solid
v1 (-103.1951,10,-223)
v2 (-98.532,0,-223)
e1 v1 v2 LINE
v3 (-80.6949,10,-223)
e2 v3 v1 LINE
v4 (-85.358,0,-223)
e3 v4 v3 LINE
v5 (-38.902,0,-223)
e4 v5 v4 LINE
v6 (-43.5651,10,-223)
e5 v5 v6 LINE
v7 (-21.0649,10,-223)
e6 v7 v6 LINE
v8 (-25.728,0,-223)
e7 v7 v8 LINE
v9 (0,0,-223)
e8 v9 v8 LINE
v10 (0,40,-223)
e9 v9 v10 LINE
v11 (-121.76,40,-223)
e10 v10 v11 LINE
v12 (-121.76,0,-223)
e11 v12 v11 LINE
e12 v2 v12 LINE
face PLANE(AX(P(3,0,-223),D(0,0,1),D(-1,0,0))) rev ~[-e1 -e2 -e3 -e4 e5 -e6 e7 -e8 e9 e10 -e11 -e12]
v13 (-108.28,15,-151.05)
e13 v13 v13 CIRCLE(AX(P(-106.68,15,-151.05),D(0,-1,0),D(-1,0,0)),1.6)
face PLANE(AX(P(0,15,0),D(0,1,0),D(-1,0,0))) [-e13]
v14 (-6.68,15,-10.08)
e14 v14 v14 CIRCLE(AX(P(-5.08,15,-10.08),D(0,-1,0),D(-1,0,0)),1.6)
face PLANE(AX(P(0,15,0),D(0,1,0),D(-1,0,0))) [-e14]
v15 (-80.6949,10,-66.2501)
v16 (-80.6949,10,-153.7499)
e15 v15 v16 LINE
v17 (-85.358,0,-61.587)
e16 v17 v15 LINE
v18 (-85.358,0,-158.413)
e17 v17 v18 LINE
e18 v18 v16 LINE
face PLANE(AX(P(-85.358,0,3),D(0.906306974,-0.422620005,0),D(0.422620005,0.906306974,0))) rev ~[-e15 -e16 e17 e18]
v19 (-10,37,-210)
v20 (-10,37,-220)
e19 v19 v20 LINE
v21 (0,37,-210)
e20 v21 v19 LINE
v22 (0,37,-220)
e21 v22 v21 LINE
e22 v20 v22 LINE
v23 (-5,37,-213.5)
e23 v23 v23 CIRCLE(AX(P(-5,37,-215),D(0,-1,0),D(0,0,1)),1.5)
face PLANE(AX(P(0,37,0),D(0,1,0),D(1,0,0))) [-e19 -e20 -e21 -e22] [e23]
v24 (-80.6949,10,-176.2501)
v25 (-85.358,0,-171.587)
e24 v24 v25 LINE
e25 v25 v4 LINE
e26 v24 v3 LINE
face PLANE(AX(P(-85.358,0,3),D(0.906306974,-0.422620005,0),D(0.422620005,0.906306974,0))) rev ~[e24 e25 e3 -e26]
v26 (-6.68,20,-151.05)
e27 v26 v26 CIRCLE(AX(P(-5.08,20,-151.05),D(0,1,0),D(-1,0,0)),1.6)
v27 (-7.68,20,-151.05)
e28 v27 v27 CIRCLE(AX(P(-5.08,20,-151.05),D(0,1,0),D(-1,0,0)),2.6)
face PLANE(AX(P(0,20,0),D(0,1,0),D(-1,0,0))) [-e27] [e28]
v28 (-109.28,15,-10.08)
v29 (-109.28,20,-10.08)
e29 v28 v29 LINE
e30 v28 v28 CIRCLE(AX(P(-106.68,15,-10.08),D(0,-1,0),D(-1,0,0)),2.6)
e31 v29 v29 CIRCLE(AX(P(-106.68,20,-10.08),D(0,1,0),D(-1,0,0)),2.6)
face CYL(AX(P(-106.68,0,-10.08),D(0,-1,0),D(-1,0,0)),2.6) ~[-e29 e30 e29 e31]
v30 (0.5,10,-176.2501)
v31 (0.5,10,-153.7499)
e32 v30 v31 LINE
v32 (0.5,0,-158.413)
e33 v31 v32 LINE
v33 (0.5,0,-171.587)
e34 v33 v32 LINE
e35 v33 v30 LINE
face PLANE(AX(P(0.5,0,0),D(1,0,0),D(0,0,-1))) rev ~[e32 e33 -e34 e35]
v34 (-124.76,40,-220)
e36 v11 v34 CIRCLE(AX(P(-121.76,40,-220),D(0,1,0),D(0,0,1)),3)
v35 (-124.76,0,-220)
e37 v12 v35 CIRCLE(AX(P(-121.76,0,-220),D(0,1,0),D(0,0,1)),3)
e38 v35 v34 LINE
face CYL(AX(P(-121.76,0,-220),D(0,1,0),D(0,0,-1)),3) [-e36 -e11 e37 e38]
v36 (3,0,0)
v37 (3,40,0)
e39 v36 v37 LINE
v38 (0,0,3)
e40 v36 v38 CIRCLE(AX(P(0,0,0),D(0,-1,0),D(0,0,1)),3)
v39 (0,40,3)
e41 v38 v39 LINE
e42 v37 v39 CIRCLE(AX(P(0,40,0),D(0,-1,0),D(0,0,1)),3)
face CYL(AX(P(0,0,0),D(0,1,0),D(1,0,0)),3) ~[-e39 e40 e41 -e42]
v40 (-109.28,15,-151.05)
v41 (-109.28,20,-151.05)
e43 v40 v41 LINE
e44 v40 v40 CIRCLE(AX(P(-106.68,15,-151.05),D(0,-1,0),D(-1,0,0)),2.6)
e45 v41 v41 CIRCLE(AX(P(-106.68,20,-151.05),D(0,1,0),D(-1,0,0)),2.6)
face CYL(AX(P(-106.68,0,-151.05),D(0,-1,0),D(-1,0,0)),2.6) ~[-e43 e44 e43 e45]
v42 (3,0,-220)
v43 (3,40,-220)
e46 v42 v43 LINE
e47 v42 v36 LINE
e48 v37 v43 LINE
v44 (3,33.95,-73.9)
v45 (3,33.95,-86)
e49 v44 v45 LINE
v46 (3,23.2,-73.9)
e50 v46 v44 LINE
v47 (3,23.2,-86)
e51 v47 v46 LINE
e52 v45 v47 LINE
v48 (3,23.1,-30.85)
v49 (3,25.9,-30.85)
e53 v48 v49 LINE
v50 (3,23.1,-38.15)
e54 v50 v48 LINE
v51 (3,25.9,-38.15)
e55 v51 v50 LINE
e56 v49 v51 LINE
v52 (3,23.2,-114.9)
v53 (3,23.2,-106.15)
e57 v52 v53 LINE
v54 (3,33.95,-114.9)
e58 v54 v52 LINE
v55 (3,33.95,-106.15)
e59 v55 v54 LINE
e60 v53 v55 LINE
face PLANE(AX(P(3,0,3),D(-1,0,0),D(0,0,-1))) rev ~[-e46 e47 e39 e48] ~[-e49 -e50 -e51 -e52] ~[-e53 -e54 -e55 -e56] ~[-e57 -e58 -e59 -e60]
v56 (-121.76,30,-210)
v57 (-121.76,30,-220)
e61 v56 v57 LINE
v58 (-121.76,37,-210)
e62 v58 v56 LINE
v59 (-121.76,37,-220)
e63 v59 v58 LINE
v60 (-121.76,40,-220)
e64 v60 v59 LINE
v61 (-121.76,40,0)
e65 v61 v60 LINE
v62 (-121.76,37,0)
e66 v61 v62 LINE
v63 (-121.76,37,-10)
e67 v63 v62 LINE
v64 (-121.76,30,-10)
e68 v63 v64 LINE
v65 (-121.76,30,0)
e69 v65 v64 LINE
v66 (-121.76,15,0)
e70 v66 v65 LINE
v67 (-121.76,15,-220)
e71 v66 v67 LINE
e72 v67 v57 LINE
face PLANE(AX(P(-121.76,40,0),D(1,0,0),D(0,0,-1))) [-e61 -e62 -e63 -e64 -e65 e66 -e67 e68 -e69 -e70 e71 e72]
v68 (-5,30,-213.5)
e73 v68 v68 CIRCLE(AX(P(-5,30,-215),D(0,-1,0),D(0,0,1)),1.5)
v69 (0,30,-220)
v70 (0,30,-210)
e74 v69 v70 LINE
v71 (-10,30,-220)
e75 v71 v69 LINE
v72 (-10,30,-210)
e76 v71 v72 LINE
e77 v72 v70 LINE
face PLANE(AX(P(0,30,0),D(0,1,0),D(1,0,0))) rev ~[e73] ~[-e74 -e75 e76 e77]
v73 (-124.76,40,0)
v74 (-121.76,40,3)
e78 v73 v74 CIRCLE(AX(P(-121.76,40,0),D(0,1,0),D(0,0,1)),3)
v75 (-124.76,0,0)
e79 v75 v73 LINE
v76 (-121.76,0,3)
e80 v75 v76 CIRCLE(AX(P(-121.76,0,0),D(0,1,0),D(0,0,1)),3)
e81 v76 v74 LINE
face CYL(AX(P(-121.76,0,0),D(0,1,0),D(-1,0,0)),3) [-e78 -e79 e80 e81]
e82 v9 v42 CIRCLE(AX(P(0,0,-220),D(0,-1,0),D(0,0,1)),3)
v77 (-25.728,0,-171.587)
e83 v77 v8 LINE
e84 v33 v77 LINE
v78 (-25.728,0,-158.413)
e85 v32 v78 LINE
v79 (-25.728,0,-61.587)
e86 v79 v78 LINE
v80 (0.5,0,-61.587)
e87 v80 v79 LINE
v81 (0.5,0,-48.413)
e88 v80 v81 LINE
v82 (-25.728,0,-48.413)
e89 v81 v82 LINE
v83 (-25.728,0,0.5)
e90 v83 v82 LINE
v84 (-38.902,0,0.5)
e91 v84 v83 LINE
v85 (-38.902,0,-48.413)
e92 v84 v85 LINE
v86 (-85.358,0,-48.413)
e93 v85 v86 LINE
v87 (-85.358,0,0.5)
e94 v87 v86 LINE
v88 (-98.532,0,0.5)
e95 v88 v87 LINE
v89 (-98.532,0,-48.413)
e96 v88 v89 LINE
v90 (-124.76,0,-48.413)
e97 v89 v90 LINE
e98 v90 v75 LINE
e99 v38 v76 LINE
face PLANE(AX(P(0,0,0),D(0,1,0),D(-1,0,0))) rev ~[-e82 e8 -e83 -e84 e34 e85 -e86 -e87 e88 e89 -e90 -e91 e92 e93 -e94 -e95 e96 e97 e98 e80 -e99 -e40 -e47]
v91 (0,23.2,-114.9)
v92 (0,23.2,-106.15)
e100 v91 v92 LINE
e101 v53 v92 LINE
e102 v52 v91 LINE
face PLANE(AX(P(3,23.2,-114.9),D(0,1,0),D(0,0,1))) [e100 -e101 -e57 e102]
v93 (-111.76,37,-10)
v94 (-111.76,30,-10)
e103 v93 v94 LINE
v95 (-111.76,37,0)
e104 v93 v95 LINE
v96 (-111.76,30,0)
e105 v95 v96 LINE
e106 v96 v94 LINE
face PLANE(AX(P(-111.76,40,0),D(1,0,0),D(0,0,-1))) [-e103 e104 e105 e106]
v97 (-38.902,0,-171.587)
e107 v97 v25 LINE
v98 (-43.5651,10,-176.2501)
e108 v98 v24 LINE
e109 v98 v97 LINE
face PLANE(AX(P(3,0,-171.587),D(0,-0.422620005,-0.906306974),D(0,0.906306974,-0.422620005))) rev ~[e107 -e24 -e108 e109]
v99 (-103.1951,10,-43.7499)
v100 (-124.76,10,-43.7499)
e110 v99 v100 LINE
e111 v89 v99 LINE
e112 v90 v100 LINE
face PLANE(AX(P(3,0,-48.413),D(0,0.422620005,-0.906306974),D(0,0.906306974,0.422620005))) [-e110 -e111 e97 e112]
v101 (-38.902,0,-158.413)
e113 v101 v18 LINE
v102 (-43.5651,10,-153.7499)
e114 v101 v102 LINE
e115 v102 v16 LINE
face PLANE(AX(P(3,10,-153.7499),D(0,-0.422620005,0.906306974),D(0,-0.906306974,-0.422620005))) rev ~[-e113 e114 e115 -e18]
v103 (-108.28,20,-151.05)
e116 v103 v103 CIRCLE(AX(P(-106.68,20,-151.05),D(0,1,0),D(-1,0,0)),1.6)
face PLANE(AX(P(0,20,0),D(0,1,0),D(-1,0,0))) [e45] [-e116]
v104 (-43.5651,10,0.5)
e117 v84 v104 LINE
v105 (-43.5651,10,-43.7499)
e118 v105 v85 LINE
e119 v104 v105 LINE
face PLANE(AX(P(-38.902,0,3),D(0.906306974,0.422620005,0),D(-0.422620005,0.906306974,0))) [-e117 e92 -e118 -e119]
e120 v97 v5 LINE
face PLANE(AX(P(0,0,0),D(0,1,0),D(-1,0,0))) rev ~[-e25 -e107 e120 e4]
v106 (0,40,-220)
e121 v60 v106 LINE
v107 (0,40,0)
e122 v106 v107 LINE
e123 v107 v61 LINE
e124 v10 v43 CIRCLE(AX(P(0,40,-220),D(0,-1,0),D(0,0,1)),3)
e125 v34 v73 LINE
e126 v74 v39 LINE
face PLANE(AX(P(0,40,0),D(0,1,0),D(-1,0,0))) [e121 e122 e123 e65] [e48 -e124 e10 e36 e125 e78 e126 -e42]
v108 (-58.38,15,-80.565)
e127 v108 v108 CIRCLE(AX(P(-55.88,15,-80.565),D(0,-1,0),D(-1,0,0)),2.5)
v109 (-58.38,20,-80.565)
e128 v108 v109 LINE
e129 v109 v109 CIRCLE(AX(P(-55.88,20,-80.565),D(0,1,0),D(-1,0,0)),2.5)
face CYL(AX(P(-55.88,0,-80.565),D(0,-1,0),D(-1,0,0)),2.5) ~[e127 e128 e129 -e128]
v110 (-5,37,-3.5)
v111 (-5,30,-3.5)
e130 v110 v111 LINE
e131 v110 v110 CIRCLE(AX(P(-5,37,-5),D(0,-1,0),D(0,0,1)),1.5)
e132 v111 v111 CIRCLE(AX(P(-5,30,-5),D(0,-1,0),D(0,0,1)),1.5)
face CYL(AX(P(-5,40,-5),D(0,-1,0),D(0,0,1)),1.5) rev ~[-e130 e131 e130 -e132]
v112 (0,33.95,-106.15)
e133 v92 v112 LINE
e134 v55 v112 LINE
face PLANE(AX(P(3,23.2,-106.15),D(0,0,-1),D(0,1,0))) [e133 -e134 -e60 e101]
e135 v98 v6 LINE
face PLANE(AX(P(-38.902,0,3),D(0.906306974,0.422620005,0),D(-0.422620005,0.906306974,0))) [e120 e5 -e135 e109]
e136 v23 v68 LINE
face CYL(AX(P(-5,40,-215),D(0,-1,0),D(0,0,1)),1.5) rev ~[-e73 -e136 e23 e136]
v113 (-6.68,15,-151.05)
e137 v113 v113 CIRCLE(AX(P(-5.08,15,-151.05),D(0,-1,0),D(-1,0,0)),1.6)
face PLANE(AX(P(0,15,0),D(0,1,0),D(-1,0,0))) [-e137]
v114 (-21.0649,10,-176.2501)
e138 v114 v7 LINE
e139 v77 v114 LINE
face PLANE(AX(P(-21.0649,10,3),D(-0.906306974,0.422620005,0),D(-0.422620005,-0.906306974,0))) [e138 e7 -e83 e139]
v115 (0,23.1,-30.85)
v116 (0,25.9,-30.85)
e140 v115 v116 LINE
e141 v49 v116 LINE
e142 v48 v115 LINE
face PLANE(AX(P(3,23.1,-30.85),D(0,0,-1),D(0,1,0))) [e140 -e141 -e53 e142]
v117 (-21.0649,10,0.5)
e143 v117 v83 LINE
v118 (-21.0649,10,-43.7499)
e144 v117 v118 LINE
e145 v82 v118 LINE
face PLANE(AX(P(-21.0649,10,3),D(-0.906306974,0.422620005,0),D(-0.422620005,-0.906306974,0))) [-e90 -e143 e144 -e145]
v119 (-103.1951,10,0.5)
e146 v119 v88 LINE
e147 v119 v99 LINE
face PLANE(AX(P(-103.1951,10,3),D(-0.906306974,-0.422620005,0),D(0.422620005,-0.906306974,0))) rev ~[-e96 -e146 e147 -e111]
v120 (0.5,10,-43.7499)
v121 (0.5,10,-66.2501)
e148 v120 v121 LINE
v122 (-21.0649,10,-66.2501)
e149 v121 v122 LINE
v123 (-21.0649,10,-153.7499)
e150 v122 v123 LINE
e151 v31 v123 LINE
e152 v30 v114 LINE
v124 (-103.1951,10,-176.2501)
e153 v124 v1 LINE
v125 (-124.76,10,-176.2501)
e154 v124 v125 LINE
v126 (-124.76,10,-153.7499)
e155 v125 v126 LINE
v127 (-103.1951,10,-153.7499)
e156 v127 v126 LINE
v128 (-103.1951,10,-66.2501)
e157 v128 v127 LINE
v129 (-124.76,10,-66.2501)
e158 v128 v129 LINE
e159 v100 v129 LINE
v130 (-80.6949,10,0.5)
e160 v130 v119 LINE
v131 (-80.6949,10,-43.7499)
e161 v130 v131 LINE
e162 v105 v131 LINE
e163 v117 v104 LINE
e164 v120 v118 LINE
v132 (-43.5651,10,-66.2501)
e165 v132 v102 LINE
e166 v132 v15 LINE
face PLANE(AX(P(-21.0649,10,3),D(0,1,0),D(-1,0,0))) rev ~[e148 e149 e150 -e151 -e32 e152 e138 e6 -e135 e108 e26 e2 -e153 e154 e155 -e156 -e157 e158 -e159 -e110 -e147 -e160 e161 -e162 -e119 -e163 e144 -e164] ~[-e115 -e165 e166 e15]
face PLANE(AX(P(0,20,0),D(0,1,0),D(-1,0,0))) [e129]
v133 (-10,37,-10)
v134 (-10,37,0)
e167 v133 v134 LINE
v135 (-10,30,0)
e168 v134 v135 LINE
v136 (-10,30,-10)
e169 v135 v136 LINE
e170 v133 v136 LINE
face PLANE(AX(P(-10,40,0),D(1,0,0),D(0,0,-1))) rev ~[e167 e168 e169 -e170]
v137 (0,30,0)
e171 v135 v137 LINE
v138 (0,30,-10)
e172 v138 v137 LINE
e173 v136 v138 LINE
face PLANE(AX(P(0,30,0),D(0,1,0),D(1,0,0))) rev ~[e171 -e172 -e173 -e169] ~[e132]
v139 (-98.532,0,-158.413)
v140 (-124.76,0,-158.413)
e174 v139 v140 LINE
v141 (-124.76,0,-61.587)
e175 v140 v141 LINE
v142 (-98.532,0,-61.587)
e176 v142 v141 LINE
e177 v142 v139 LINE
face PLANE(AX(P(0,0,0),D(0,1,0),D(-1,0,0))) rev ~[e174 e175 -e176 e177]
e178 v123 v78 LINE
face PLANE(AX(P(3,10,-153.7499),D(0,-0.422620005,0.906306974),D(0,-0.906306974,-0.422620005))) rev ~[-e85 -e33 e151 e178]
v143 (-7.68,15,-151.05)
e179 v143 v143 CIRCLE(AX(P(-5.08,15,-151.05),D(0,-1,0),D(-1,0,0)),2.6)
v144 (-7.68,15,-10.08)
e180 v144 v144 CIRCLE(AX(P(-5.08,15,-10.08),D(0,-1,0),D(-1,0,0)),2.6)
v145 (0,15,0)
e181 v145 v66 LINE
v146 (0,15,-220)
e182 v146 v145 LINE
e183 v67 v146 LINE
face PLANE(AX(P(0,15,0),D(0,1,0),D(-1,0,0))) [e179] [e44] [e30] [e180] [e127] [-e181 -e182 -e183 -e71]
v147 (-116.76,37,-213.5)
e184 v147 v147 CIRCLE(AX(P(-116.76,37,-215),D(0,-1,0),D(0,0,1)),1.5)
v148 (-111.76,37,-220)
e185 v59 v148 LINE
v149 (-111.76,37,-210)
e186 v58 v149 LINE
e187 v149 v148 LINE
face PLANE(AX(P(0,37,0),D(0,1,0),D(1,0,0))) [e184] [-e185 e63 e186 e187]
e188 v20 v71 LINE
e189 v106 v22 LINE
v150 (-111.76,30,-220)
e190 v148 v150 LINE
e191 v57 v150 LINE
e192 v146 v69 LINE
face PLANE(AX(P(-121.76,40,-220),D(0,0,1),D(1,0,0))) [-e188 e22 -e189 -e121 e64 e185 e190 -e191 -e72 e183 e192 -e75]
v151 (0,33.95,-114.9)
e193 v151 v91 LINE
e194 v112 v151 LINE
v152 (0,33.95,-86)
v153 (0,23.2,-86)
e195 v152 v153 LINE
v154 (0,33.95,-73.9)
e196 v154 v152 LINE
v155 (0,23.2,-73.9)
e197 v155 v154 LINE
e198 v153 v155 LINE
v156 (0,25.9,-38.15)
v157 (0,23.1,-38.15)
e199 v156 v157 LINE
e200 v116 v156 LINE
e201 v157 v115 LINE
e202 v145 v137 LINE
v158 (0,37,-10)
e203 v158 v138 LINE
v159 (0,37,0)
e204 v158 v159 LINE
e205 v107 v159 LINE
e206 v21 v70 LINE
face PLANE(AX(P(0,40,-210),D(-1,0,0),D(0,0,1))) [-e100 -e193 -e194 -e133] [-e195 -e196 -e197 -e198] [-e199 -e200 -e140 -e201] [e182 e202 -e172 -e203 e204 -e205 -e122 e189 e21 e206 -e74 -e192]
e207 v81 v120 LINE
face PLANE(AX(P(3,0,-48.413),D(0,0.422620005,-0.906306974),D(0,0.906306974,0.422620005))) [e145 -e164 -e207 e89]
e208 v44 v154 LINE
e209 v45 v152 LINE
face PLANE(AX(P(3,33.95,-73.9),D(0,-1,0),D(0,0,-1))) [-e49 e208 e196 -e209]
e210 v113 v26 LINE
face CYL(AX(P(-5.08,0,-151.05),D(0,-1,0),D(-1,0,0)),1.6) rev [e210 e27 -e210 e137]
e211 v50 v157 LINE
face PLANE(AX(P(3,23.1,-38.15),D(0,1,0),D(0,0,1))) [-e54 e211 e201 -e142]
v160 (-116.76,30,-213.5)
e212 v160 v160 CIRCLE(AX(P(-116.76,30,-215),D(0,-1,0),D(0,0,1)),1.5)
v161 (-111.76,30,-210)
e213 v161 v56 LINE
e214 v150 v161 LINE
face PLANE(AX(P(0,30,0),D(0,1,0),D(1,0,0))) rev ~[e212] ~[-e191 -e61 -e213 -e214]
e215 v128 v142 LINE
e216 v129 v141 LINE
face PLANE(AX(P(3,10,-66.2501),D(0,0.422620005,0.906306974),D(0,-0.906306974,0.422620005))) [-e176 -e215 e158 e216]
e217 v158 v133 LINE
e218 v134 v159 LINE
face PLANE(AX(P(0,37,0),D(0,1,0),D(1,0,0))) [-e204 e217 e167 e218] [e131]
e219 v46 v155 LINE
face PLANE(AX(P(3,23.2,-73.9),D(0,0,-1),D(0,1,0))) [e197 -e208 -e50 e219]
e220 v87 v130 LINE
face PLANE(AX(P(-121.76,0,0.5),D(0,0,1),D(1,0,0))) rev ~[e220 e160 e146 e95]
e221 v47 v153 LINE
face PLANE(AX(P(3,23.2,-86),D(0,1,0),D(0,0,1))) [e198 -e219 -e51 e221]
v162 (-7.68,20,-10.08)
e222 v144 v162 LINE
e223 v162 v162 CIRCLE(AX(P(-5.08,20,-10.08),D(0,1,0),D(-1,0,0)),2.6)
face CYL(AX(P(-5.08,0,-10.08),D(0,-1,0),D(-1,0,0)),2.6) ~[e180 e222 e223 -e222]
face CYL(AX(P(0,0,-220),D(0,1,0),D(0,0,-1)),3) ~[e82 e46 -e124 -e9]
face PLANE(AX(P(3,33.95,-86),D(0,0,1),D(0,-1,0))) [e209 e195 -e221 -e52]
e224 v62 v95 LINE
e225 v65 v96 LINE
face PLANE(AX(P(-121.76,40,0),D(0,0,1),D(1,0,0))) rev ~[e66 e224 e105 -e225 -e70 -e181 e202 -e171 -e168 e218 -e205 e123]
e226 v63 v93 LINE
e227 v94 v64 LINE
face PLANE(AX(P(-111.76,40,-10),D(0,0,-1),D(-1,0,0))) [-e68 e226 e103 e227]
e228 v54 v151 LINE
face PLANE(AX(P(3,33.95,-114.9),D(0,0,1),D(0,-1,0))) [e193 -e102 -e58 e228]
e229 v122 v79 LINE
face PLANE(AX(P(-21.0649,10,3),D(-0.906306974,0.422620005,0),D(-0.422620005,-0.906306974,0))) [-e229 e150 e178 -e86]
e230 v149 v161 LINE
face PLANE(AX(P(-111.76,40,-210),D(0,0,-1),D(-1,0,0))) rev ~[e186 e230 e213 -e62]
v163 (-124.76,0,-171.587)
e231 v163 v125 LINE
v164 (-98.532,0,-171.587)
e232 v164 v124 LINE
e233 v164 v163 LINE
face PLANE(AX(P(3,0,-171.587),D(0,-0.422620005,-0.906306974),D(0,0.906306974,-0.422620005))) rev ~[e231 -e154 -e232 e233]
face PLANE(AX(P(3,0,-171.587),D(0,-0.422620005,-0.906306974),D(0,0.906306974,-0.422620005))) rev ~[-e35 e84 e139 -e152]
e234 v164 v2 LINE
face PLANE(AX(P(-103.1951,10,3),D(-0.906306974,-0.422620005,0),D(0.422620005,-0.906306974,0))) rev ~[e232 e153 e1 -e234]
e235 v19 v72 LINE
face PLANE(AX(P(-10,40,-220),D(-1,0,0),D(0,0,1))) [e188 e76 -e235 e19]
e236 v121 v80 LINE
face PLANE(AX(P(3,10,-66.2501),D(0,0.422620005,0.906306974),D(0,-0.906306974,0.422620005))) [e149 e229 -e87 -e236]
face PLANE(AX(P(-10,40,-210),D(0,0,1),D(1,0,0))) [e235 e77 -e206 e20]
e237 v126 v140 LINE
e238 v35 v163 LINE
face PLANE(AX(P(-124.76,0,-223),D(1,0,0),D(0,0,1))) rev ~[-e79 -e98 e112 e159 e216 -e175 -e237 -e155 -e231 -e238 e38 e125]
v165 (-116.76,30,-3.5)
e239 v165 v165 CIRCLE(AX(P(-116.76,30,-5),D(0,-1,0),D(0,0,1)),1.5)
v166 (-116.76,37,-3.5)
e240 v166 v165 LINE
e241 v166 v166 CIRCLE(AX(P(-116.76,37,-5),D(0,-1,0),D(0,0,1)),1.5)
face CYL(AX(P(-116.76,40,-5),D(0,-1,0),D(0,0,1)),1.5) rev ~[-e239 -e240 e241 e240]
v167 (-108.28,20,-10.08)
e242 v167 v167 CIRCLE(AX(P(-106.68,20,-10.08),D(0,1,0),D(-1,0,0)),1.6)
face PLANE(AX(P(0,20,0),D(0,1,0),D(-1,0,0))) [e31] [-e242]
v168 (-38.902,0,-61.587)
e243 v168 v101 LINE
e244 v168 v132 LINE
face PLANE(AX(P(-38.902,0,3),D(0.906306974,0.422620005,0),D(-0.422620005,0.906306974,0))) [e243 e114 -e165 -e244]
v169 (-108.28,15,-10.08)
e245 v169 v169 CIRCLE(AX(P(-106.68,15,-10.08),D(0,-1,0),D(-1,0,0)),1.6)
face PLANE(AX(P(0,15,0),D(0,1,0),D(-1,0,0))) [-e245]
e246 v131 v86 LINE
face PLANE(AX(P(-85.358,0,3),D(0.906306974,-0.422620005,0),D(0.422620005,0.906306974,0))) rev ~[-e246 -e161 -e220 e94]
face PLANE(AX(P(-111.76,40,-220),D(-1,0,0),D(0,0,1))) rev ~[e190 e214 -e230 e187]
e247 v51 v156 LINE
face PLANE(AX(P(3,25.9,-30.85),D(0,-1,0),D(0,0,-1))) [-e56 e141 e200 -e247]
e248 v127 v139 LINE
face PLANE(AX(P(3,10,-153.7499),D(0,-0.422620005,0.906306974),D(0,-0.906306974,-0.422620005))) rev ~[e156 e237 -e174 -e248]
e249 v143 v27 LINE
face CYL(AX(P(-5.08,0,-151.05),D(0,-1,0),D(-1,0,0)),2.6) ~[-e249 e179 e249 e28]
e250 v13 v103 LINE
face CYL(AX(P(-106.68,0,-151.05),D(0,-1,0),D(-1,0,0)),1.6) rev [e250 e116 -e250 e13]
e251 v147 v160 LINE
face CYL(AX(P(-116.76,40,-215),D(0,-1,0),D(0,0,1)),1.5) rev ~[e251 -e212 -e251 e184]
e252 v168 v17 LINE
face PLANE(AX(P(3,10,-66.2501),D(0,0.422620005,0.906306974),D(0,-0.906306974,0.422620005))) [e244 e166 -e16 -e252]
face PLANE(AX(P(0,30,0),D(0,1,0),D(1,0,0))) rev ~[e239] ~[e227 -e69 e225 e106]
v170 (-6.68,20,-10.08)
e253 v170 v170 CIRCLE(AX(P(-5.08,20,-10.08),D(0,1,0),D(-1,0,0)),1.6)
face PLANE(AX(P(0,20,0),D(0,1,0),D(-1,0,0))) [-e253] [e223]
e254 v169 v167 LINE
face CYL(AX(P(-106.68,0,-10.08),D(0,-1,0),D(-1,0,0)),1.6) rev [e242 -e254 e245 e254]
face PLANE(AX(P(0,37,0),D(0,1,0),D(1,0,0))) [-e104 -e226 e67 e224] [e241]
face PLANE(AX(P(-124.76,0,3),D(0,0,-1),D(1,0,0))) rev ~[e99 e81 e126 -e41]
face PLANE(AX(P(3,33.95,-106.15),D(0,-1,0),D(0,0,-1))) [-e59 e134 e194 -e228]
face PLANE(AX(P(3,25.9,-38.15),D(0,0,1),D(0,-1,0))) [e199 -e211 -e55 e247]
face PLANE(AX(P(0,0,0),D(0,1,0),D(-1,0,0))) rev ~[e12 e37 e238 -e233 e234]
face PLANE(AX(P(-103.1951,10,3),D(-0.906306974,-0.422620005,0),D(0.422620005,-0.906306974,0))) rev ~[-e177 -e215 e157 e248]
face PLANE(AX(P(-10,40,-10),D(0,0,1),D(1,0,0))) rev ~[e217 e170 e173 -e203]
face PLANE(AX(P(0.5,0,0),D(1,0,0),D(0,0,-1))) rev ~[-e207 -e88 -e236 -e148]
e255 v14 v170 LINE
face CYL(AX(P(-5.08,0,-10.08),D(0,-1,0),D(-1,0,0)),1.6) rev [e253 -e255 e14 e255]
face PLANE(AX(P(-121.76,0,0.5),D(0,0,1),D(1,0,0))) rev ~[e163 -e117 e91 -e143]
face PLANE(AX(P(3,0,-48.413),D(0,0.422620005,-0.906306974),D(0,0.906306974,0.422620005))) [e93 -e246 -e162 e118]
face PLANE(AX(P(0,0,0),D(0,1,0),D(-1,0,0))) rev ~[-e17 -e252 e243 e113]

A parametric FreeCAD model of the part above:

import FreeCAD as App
import Part
import Sketcher

V = App.Vector
Q = App.Units.Quantity


def edges_at(feature, points):
    """Names of the edges that pass closest to the given points."""
    edges = feature.Shape.Edges
    near = lambda p: min(range(len(edges)), key=lambda i: edges[i].distToShape(Part.Vertex(*p))[0])
    return sorted({f"Edge{near(p) + 1}" for p in points})

doc = App.newDocument("Part")
body = doc.addObject("PartDesign::Body", "Body")

# Sketch on XZ plane
sketch1 = body.newObject("Sketcher::SketchObject", "Sketch")
sketch1.AttachmentSupport = (doc.getObject("XZ_Plane"), [""])
sketch1.MapMode = "FlatFace"
sketch1.addGeometry(Part.LineSegment(V(-122, 0, 0), V(0, 0, 0)), False)
sketch1.addGeometry(Part.LineSegment(V(0, 0, 0), V(0, -220, 0)), False)
sketch1.addGeometry(Part.LineSegment(V(0, -220, 0), V(-122, -220, 0)), False)
sketch1.addGeometry(Part.LineSegment(V(-122, -220, 0), V(-122, 0, 0)), False)
sketch1.addConstraint(Sketcher.Constraint("Coincident", 0, 2, 1, 1))
sketch1.addConstraint(Sketcher.Constraint("Coincident", 1, 2, 2, 1))
sketch1.addConstraint(Sketcher.Constraint("Coincident", 2, 2, 3, 1))
sketch1.addConstraint(Sketcher.Constraint("Coincident", 3, 2, 0, 1))
sketch1.addConstraint(Sketcher.Constraint("Horizontal", 0))
sketch1.addConstraint(Sketcher.Constraint("Vertical", 1))
sketch1.addConstraint(Sketcher.Constraint("Horizontal", 2))
sketch1.addConstraint(Sketcher.Constraint("Vertical", 3))
sketch1.addConstraint(Sketcher.Constraint("Coincident", 0, 2, -1, 1))
sketch1.addConstraint(Sketcher.Constraint("DistanceY", 1, 2, 1, 1, 220.0))
sketch1.addConstraint(Sketcher.Constraint("DistanceX", 0, 1, 0, 2, 121.76))
pad1 = body.newObject("PartDesign::Pad", "Pad")
pad1.Profile = sketch1
pad1.Length = 15
pad1.Reversed = True

# Sketch on XZ plane
sketch2 = body.newObject("Sketcher::SketchObject", "Sketch001")
sketch2.AttachmentSupport = (doc.getObject("XZ_Plane"), [""])
sketch2.MapMode = "FlatFace"
sketch2.addGeometry(Part.LineSegment(V(3, -223, 0), V(-125, -223, 0)), False)
sketch2.addGeometry(Part.LineSegment(V(-125, -223, 0), V(-125, 3, 0)), False)
sketch2.addGeometry(Part.LineSegment(V(-125, 3, 0), V(3, 3, 0)), False)
sketch2.addGeometry(Part.LineSegment(V(3, 3, 0), V(3, -223, 0)), False)
sketch2.addGeometry(Part.LineSegment(V(0, -220, 0), V(0, 0, 0)), False)
sketch2.addGeometry(Part.LineSegment(V(0, 0, 0), V(-122, 0, 0)), False)
sketch2.addGeometry(Part.LineSegment(V(-122, 0, 0), V(-122, -220, 0)), False)
sketch2.addGeometry(Part.LineSegment(V(-122, -220, 0), V(0, -220, 0)), False)
sketch2.addConstraint(Sketcher.Constraint("Coincident", 0, 2, 1, 1))
sketch2.addConstraint(Sketcher.Constraint("Coincident", 1, 2, 2, 1))
sketch2.addConstraint(Sketcher.Constraint("Coincident", 2, 2, 3, 1))
sketch2.addConstraint(Sketcher.Constraint("Coincident", 3, 2, 0, 1))
sketch2.addConstraint(Sketcher.Constraint("Coincident", 4, 2, 5, 1))
sketch2.addConstraint(Sketcher.Constraint("Coincident", 5, 2, 6, 1))
sketch2.addConstraint(Sketcher.Constraint("Coincident", 6, 2, 7, 1))
sketch2.addConstraint(Sketcher.Constraint("Coincident", 7, 2, 4, 1))
sketch2.addConstraint(Sketcher.Constraint("Horizontal", 0))
sketch2.addConstraint(Sketcher.Constraint("Vertical", 1))
sketch2.addConstraint(Sketcher.Constraint("Horizontal", 2))
sketch2.addConstraint(Sketcher.Constraint("Vertical", 3))
sketch2.addConstraint(Sketcher.Constraint("Vertical", 4))
sketch2.addConstraint(Sketcher.Constraint("Horizontal", 5))
sketch2.addConstraint(Sketcher.Constraint("Vertical", 6))
sketch2.addConstraint(Sketcher.Constraint("Horizontal", 7))
sketch2.addConstraint(Sketcher.Constraint("Coincident", 4, 2, -1, 1))
sketch2.addConstraint(Sketcher.Constraint("DistanceY", 4, 1, 4, 2, 220.0))
sketch2.addConstraint(Sketcher.Constraint("DistanceY", -1, 1, 1, 2, 3.0))
sketch2.addConstraint(Sketcher.Constraint("DistanceX", -1, 1, 2, 2, 3.0))
sketch2.addConstraint(Sketcher.Constraint("DistanceX", 1, 2, 5, 2, 3.0))
sketch2.addConstraint(Sketcher.Constraint("DistanceY", 0, 2, 6, 2, 3.0))
sketch2.addConstraint(Sketcher.Constraint("DistanceX", 5, 2, 5, 1, 121.76))
pad2 = body.newObject("PartDesign::Pad", "Pad001")
pad2.Profile = sketch2
pad2.Length = 40
pad2.Reversed = True
doc.recompute()

fillet = body.newObject("PartDesign::Fillet", "Fillet")
fillet.Base = (pad2, edges_at(pad2, [
    (3, 20, -223),
    (-124.76, 20, -223),
    (-124.76, 20, 3),
    (3, 20, 3),
]))
fillet.Radius = 3

# Sketch on YZ plane
sketch3 = body.newObject("Sketcher::SketchObject", "Sketch002")
sketch3.AttachmentSupport = (doc.getObject("YZ_Plane"), [""])
sketch3.MapMode = "FlatFace"
sketch3.AttachmentOffset = App.Placement(V(0, 0, 3), App.Rotation())
sketch3.addGeometry(Part.LineSegment(V(34, -86, 0), V(34, -73.9, 0)), False)
sketch3.addGeometry(Part.LineSegment(V(34, -73.9, 0), V(23.2, -73.9, 0)), False)
sketch3.addGeometry(Part.LineSegment(V(23.2, -73.9, 0), V(23.2, -86, 0)), False)
sketch3.addGeometry(Part.LineSegment(V(23.2, -86, 0), V(34, -86, 0)), False)
sketch3.addGeometry(Part.LineSegment(V(34, -114.9, 0), V(34, -106.2, 0)), False)
sketch3.addGeometry(Part.LineSegment(V(34, -106.2, 0), V(23.2, -106.2, 0)), False)
sketch3.addGeometry(Part.LineSegment(V(23.2, -106.2, 0), V(23.2, -114.9, 0)), False)
sketch3.addGeometry(Part.LineSegment(V(23.2, -114.9, 0), V(34, -114.9, 0)), False)
sketch3.addGeometry(Part.LineSegment(V(25.9, -38.1, 0), V(25.9, -30.9, 0)), False)
sketch3.addGeometry(Part.LineSegment(V(25.9, -30.9, 0), V(23.1, -30.9, 0)), False)
sketch3.addGeometry(Part.LineSegment(V(23.1, -30.9, 0), V(23.1, -38.1, 0)), False)
sketch3.addGeometry(Part.LineSegment(V(23.1, -38.1, 0), V(25.9, -38.1, 0)), False)
sketch3.addConstraint(Sketcher.Constraint("Coincident", 0, 2, 1, 1))
sketch3.addConstraint(Sketcher.Constraint("Coincident", 1, 2, 2, 1))
sketch3.addConstraint(Sketcher.Constraint("Coincident", 2, 2, 3, 1))
sketch3.addConstraint(Sketcher.Constraint("Coincident", 3, 2, 0, 1))
sketch3.addConstraint(Sketcher.Constraint("Coincident", 4, 2, 5, 1))
sketch3.addConstraint(Sketcher.Constraint("Coincident", 5, 2, 6, 1))
sketch3.addConstraint(Sketcher.Constraint("Coincident", 6, 2, 7, 1))
sketch3.addConstraint(Sketcher.Constraint("Coincident", 7, 2, 4, 1))
sketch3.addConstraint(Sketcher.Constraint("Coincident", 8, 2, 9, 1))
sketch3.addConstraint(Sketcher.Constraint("Coincident", 9, 2, 10, 1))
sketch3.addConstraint(Sketcher.Constraint("Coincident", 10, 2, 11, 1))
sketch3.addConstraint(Sketcher.Constraint("Coincident", 11, 2, 8, 1))
sketch3.addConstraint(Sketcher.Constraint("Vertical", 0))
sketch3.addConstraint(Sketcher.Constraint("Horizontal", 1))
sketch3.addConstraint(Sketcher.Constraint("Vertical", 2))
sketch3.addConstraint(Sketcher.Constraint("Horizontal", 3))
sketch3.addConstraint(Sketcher.Constraint("Vertical", 4))
sketch3.addConstraint(Sketcher.Constraint("Horizontal", 5))
sketch3.addConstraint(Sketcher.Constraint("Vertical", 6))
sketch3.addConstraint(Sketcher.Constraint("Horizontal", 7))
sketch3.addConstraint(Sketcher.Constraint("Vertical", 8))
sketch3.addConstraint(Sketcher.Constraint("Horizontal", 9))
sketch3.addConstraint(Sketcher.Constraint("Vertical", 10))
sketch3.addConstraint(Sketcher.Constraint("Horizontal", 11))
sketch3.addConstraint(Sketcher.Constraint("Vertical", 3, 2, 4, 2))
sketch3.addConstraint(Sketcher.Constraint("Vertical", 2, 2, 5, 2))
sketch3.addConstraint(Sketcher.Constraint("DistanceX", 9, 2, 9, 1, 2.8))
sketch3.addConstraint(Sketcher.Constraint("DistanceY", 0, 1, 0, 2, 12.1))
sketch3.addConstraint(Sketcher.Constraint("DistanceY", 8, 1, 8, 2, 7.3))
sketch3.addConstraint(Sketcher.Constraint("DistanceX", 1, 2, 1, 1, 10.75))
sketch3.addConstraint(Sketcher.Constraint("DistanceY", 4, 1, 4, 2, 8.75))
sketch3.addConstraint(Sketcher.Constraint("DistanceY", 8, 2, -1, 1, 30.85))
sketch3.addConstraint(Sketcher.Constraint("DistanceY", 4, 2, 3, 2, 20.15))
sketch3.addConstraint(Sketcher.Constraint("DistanceY", 1, 2, 10, 2, 35.75))
sketch3.addConstraint(Sketcher.Constraint("DistanceX", -1, 1, 1, 2, 23.2))
sketch3.addConstraint(Sketcher.Constraint("DistanceX", -1, 1, 8, 2, 25.9))
pocket1 = body.newObject("PartDesign::Pocket", "Pocket")
pocket1.Profile = sketch3
pocket1.Length = 3

# Sketch on XZ plane
sketch4 = body.newObject("Sketcher::SketchObject", "Sketch003")
sketch4.AttachmentSupport = (doc.getObject("XZ_Plane"), [""])
sketch4.MapMode = "FlatFace"
sketch4.addGeometry(Part.Circle(V(-5.1, -10.1, 0), V(0, 0, 1), 2.6), False)
sketch4.addGeometry(Part.Circle(V(-5.1, -10.1, 0), V(0, 0, 1), 1.6), False)
sketch4.addGeometry(Part.Circle(V(-55.9, -80.6, 0), V(0, 0, 1), 2.5), False)
sketch4.addGeometry(Part.Circle(V(-5.1, -151.1, 0), V(0, 0, 1), 2.6), False)
sketch4.addGeometry(Part.Circle(V(-5.1, -151.1, 0), V(0, 0, 1), 1.6), False)
sketch4.addGeometry(Part.Circle(V(-106.7, -10.1, 0), V(0, 0, 1), 2.6), False)
sketch4.addGeometry(Part.Circle(V(-106.7, -10.1, 0), V(0, 0, 1), 1.6), False)
sketch4.addGeometry(Part.Circle(V(-106.7, -151.1, 0), V(0, 0, 1), 2.6), False)
sketch4.addGeometry(Part.Circle(V(-106.7, -151.1, 0), V(0, 0, 1), 1.6), False)
sketch4.addConstraint(Sketcher.Constraint("Coincident", 1, 3, 0, 3))
sketch4.addConstraint(Sketcher.Constraint("Coincident", 4, 3, 3, 3))
sketch4.addConstraint(Sketcher.Constraint("Coincident", 6, 3, 5, 3))
sketch4.addConstraint(Sketcher.Constraint("Coincident", 8, 3, 7, 3))
sketch4.addConstraint(Sketcher.Constraint("Equal", 0, 3))
sketch4.addConstraint(Sketcher.Constraint("Equal", 1, 4))
sketch4.addConstraint(Sketcher.Constraint("Equal", 3, 5))
sketch4.addConstraint(Sketcher.Constraint("Equal", 4, 6))
sketch4.addConstraint(Sketcher.Constraint("Equal", 5, 7))
sketch4.addConstraint(Sketcher.Constraint("Equal", 6, 8))
sketch4.addConstraint(Sketcher.Constraint("Horizontal", 1, 3, 5, 3))
sketch4.addConstraint(Sketcher.Constraint("Horizontal", 4, 3, 7, 3))
sketch4.addConstraint(Sketcher.Constraint("Vertical", 1, 3, 3, 3))
sketch4.addConstraint(Sketcher.Constraint("Vertical", 6, 3, 7, 3))
sketch4.addConstraint(Sketcher.Constraint("Diameter", 2, 5.0))
sketch4.addConstraint(Sketcher.Constraint("Diameter", 1, 3.2))
sketch4.addConstraint(Sketcher.Constraint("Diameter", 0, 5.2))
sketch4.addConstraint(Sketcher.Constraint("DistanceX", 2, 3, 0, 3, 50.8))
sketch4.addConstraint(Sketcher.Constraint("DistanceX", 5, 3, 2, 3, 50.8))
sketch4.addConstraint(Sketcher.Constraint("DistanceX", 0, 3, -1, 1, 5.08))
sketch4.addConstraint(Sketcher.Constraint("DistanceY", 0, 3, -1, 1, 10.08))
sketch4.addConstraint(Sketcher.Constraint("DistanceY", 3, 3, 0, 3, 140.97))
sketch4.addConstraint(Sketcher.Constraint("DistanceY", 2, 3, 0, 3, 70.485))
pad3 = body.newObject("PartDesign::Pad", "Pad002")
pad3.Profile = sketch4
pad3.Length = 20
pad3.Reversed = True

# Sketch on XZ plane
sketch5 = body.newObject("Sketcher::SketchObject", "Sketch004")
sketch5.AttachmentSupport = (doc.getObject("XZ_Plane"), [""])
sketch5.MapMode = "FlatFace"
sketch5.AttachmentOffset = App.Placement(V(0, 0, -40), App.Rotation())
sketch5.addGeometry(Part.LineSegment(V(-122, -10, 0), V(-122, 0, 0)), False)
sketch5.addGeometry(Part.LineSegment(V(-122, 0, 0), V(-112, 0, 0)), False)
sketch5.addGeometry(Part.LineSegment(V(-112, 0, 0), V(-112, -10, 0)), False)
sketch5.addGeometry(Part.LineSegment(V(-112, -10, 0), V(-122, -10, 0)), False)
sketch5.addGeometry(Part.LineSegment(V(-122, -220, 0), V(-122, -210, 0)), False)
sketch5.addGeometry(Part.LineSegment(V(-122, -210, 0), V(-112, -210, 0)), False)
sketch5.addGeometry(Part.LineSegment(V(-112, -210, 0), V(-112, -220, 0)), False)
sketch5.addGeometry(Part.LineSegment(V(-112, -220, 0), V(-122, -220, 0)), False)
sketch5.addGeometry(Part.LineSegment(V(-10, -10, 0), V(-10, 0, 0)), False)
sketch5.addGeometry(Part.LineSegment(V(-10, 0, 0), V(0, 0, 0)), False)
sketch5.addGeometry(Part.LineSegment(V(0, 0, 0), V(0, -10, 0)), False)
sketch5.addGeometry(Part.LineSegment(V(0, -10, 0), V(-10, -10, 0)), False)
sketch5.addGeometry(Part.LineSegment(V(0, -220, 0), V(-10, -220, 0)), False)
sketch5.addGeometry(Part.LineSegment(V(-10, -220, 0), V(-10, -210, 0)), False)
sketch5.addGeometry(Part.LineSegment(V(-10, -210, 0), V(0, -210, 0)), False)
sketch5.addGeometry(Part.LineSegment(V(0, -210, 0), V(0, -220, 0)), False)
sketch5.addConstraint(Sketcher.Constraint("Coincident", 0, 2, 1, 1))
sketch5.addConstraint(Sketcher.Constraint("Coincident", 1, 2, 2, 1))
sketch5.addConstraint(Sketcher.Constraint("Coincident", 2, 2, 3, 1))
sketch5.addConstraint(Sketcher.Constraint("Coincident", 3, 2, 0, 1))
sketch5.addConstraint(Sketcher.Constraint("Coincident", 4, 2, 5, 1))
sketch5.addConstraint(Sketcher.Constraint("Coincident", 5, 2, 6, 1))
sketch5.addConstraint(Sketcher.Constraint("Coincident", 6, 2, 7, 1))
sketch5.addConstraint(Sketcher.Constraint("Coincident", 7, 2, 4, 1))
sketch5.addConstraint(Sketcher.Constraint("Coincident", 8, 2, 9, 1))
sketch5.addConstraint(Sketcher.Constraint("Coincident", 9, 2, 10, 1))
sketch5.addConstraint(Sketcher.Constraint("Coincident", 10, 2, 11, 1))
sketch5.addConstraint(Sketcher.Constraint("Coincident", 11, 2, 8, 1))
sketch5.addConstraint(Sketcher.Constraint("Coincident", 12, 2, 13, 1))
sketch5.addConstraint(Sketcher.Constraint("Coincident", 13, 2, 14, 1))
sketch5.addConstraint(Sketcher.Constraint("Coincident", 14, 2, 15, 1))
sketch5.addConstraint(Sketcher.Constraint("Coincident", 15, 2, 12, 1))
sketch5.addConstraint(Sketcher.Constraint("Vertical", 0))
sketch5.addConstraint(Sketcher.Constraint("Horizontal", 1))
sketch5.addConstraint(Sketcher.Constraint("Vertical", 2))
sketch5.addConstraint(Sketcher.Constraint("Horizontal", 3))
sketch5.addConstraint(Sketcher.Constraint("Vertical", 4))
sketch5.addConstraint(Sketcher.Constraint("Horizontal", 5))
sketch5.addConstraint(Sketcher.Constraint("Vertical", 6))
sketch5.addConstraint(Sketcher.Constraint("Horizontal", 7))
sketch5.addConstraint(Sketcher.Constraint("Vertical", 8))
sketch5.addConstraint(Sketcher.Constraint("Horizontal", 9))
sketch5.addConstraint(Sketcher.Constraint("Vertical", 10))
sketch5.addConstraint(Sketcher.Constraint("Horizontal", 11))
sketch5.addConstraint(Sketcher.Constraint("Horizontal", 12))
sketch5.addConstraint(Sketcher.Constraint("Vertical", 13))
sketch5.addConstraint(Sketcher.Constraint("Horizontal", 14))
sketch5.addConstraint(Sketcher.Constraint("Vertical", 15))
sketch5.addConstraint(Sketcher.Constraint("Coincident", 9, 2, -1, 1))
sketch5.addConstraint(Sketcher.Constraint("PointOnObject", 0, 2, -1))
sketch5.addConstraint(Sketcher.Constraint("PointOnObject", 14, 2, -2))
sketch5.addConstraint(Sketcher.Constraint("Horizontal", 3, 2, 10, 2))
sketch5.addConstraint(Sketcher.Constraint("Horizontal", 7, 2, 12, 2))
sketch5.addConstraint(Sketcher.Constraint("Horizontal", 5, 2, 13, 2))
sketch5.addConstraint(Sketcher.Constraint("Vertical", 3, 2, 4, 2))
sketch5.addConstraint(Sketcher.Constraint("Vertical", 2, 2, 5, 2))
sketch5.addConstraint(Sketcher.Constraint("Vertical", 11, 2, 12, 2))
sketch5.addConstraint(Sketcher.Constraint("Equal", 7, 9))
sketch5.addConstraint(Sketcher.Constraint("Equal", 14, 0))
sketch5.addConstraint(Sketcher.Constraint("Equal", 2, 4))
sketch5.addConstraint(Sketcher.Constraint("DistanceX", 1, 1, 1, 2, 10.0))
sketch5.addConstraint(Sketcher.Constraint("DistanceY", 4, 2, -1, 1, 210.0))
sketch5.addConstraint(Sketcher.Constraint("DistanceX", 0, 2, -1, 1, 121.76))
pad4 = body.newObject("PartDesign::Pad", "Pad003")
pad4.Profile = sketch5
pad4.Length = 10

# Sketch on XZ plane
sketch6 = body.newObject("Sketcher::SketchObject", "Sketch005")
sketch6.AttachmentSupport = (doc.getObject("XZ_Plane"), [""])
sketch6.MapMode = "FlatFace"
sketch6.AttachmentOffset = App.Placement(V(0, 0, -40), App.Rotation())
sketch6.addGeometry(Part.Circle(V(-5, -5, 0), V(0, 0, 1), 1.5), False)
sketch6.addGeometry(Part.Circle(V(-5, -215, 0), V(0, 0, 1), 1.5), False)
sketch6.addGeometry(Part.Circle(V(-116.8, -215, 0), V(0, 0, 1), 1.5), False)
sketch6.addGeometry(Part.Circle(V(-116.8, -5, 0), V(0, 0, 1), 1.5), False)
sketch6.addConstraint(Sketcher.Constraint("Equal", 0, 1))
sketch6.addConstraint(Sketcher.Constraint("Equal", 1, 2))
sketch6.addConstraint(Sketcher.Constraint("Equal", 2, 3))
sketch6.addConstraint(Sketcher.Constraint("Horizontal", 1, 3, 2, 3))
sketch6.addConstraint(Sketcher.Constraint("Horizontal", 0, 3, 3, 3))
sketch6.addConstraint(Sketcher.Constraint("Vertical", 0, 3, 1, 3))
sketch6.addConstraint(Sketcher.Constraint("Vertical", 2, 3, 3, 3))
sketch6.addConstraint(Sketcher.Constraint("Diameter", 0, 3.0))
sketch6.addConstraint(Sketcher.Constraint("DistanceX", 0, 3, -1, 1, 5.0))
sketch6.addConstraint(Sketcher.Constraint("DistanceY", 0, 3, -1, 1, 5.0))
sketch6.addConstraint(Sketcher.Constraint("DistanceY", 1, 3, -1, 1, 215.0))
sketch6.addConstraint(Sketcher.Constraint("DistanceX", 2, 3, -1, 1, 116.76))
doc.recompute()
hole = body.newObject("PartDesign::Hole", "Hole")
hole.Profile = sketch6
hole.ThreadType = "None"
hole.Diameter = 3
hole.DepthType = "Dimension"
hole.Depth = 10
hole.DrillPoint = "Flat"
hole.Reversed = True

# Sketch on XZ plane
sketch7 = body.newObject("Sketcher::SketchObject", "Sketch006")
sketch7.AttachmentSupport = (doc.getObject("XZ_Plane"), [""])
sketch7.MapMode = "FlatFace"
sketch7.AttachmentOffset = App.Placement(V(0, 0, -40), App.Rotation())
sketch7.addGeometry(Part.LineSegment(V(-122, 0, 0), V(0, 0, 0)), False)
sketch7.addGeometry(Part.LineSegment(V(0, 0, 0), V(0, -220, 0)), False)
sketch7.addGeometry(Part.LineSegment(V(0, -220, 0), V(-122, -220, 0)), False)
sketch7.addGeometry(Part.LineSegment(V(-122, -220, 0), V(-122, 0, 0)), False)
sketch7.addConstraint(Sketcher.Constraint("Coincident", 0, 2, 1, 1))
sketch7.addConstraint(Sketcher.Constraint("Coincident", 1, 2, 2, 1))
sketch7.addConstraint(Sketcher.Constraint("Coincident", 2, 2, 3, 1))
sketch7.addConstraint(Sketcher.Constraint("Coincident", 3, 2, 0, 1))
sketch7.addConstraint(Sketcher.Constraint("Horizontal", 0))
sketch7.addConstraint(Sketcher.Constraint("Vertical", 1))
sketch7.addConstraint(Sketcher.Constraint("Horizontal", 2))
sketch7.addConstraint(Sketcher.Constraint("Vertical", 3))
sketch7.addConstraint(Sketcher.Constraint("Coincident", 0, 2, -1, 1))
sketch7.addConstraint(Sketcher.Constraint("DistanceY", 1, 2, 1, 1, 220.0))
sketch7.addConstraint(Sketcher.Constraint("DistanceX", 0, 1, 0, 2, 121.76))
pocket2 = body.newObject("PartDesign::Pocket", "Pocket001")
pocket2.Profile = sketch7
pocket2.Length = 3
pocket2.Reversed = True

# Sketch on YZ plane
sketch8 = body.newObject("Sketcher::SketchObject", "Sketch007")
sketch8.AttachmentSupport = (doc.getObject("YZ_Plane"), [""])
sketch8.MapMode = "FlatFace"
sketch8.AttachmentOffset = App.Placement(V(0, 0, 3), App.Rotation())
sketch8.addGeometry(Part.LineSegment(V(0, -48, 0), V(0, -62, 0)), False)
sketch8.addGeometry(Part.LineSegment(V(0, -62, 0), V(10, -66, 0)), False)
sketch8.addGeometry(Part.LineSegment(V(10, -66, 0), V(10, -44, 0)), False)
sketch8.addGeometry(Part.LineSegment(V(10, -44, 0), V(0, -48, 0)), False)
sketch8.addGeometry(Part.LineSegment(V(0, -158, 0), V(0, -172, 0)), False)
sketch8.addGeometry(Part.LineSegment(V(0, -172, 0), V(10, -176, 0)), False)
sketch8.addGeometry(Part.LineSegment(V(10, -176, 0), V(10, -154, 0)), False)
sketch8.addGeometry(Part.LineSegment(V(10, -154, 0), V(0, -158, 0)), False)
sketch8.addConstraint(Sketcher.Constraint("Coincident", 0, 2, 1, 1))
sketch8.addConstraint(Sketcher.Constraint("Coincident", 1, 2, 2, 1))
sketch8.addConstraint(Sketcher.Constraint("Coincident", 2, 2, 3, 1))
sketch8.addConstraint(Sketcher.Constraint("Coincident", 3, 2, 0, 1))
sketch8.addConstraint(Sketcher.Constraint("Coincident", 4, 2, 5, 1))
sketch8.addConstraint(Sketcher.Constraint("Coincident", 5, 2, 6, 1))
sketch8.addConstraint(Sketcher.Constraint("Coincident", 6, 2, 7, 1))
sketch8.addConstraint(Sketcher.Constraint("Coincident", 7, 2, 4, 1))
sketch8.addConstraint(Sketcher.Constraint("Vertical", 0))
sketch8.addConstraint(Sketcher.Constraint("Vertical", 2))
sketch8.addConstraint(Sketcher.Constraint("Vertical", 4))
sketch8.addConstraint(Sketcher.Constraint("Vertical", 6))
sketch8.addConstraint(Sketcher.Constraint("PointOnObject", 0, 2, -2))
sketch8.addConstraint(Sketcher.Constraint("PointOnObject", 4, 2, -2))
sketch8.addConstraint(Sketcher.Constraint("Parallel", 1, 5))
sketch8.addConstraint(Sketcher.Constraint("Parallel", 3, 7))
sketch8.addConstraint(Sketcher.Constraint("Vertical", 2, 2, 5, 2))
sketch8.addConstraint(Sketcher.Constraint("Equal", 0, 4))
sketch8.addConstraint(Sketcher.Constraint("Equal", 1, 3))
sketch8.addConstraint(Sketcher.Constraint("DistanceX", -1, 1, 1, 2, 10.0))
sketch8.addConstraint(Sketcher.Constraint("DistanceY", 0, 2, 0, 1, 13.174))
sketch8.addConstraint(Sketcher.Constraint("Angle", 1, Q("-25 deg")))
sketch8.addConstraint(Sketcher.Constraint("DistanceY", 4, 2, 0, 2, 110.0))
sketch8.addConstraint(Sketcher.Constraint("DistanceY", 1, 2, -1, 1, 66.25))
pocket3 = body.newObject("PartDesign::Pocket", "Pocket002")
pocket3.Profile = sketch8
pocket3.Length = 127.76

# Sketch on YZ plane
sketch9 = body.newObject("Sketcher::SketchObject", "Sketch008")
sketch9.AttachmentSupport = (doc.getObject("YZ_Plane"), [""])
sketch9.MapMode = "FlatFace"
sketch9.AttachmentOffset = App.Placement(V(0, 0, 3), App.Rotation())
sketch9.addGeometry(Part.LineSegment(V(0, -48, 0), V(0, -62, 0)), False)
sketch9.addGeometry(Part.LineSegment(V(0, -62, 0), V(10, -66, 0)), False)
sketch9.addGeometry(Part.LineSegment(V(10, -66, 0), V(10, -44, 0)), False)
sketch9.addGeometry(Part.LineSegment(V(10, -44, 0), V(0, -48, 0)), False)
sketch9.addGeometry(Part.LineSegment(V(0, -158, 0), V(0, -172, 0)), False)
sketch9.addGeometry(Part.LineSegment(V(0, -172, 0), V(10, -176, 0)), False)
sketch9.addGeometry(Part.LineSegment(V(10, -176, 0), V(10, -154, 0)), False)
sketch9.addGeometry(Part.LineSegment(V(10, -154, 0), V(0, -158, 0)), False)
sketch9.addConstraint(Sketcher.Constraint("Coincident", 0, 2, 1, 1))
sketch9.addConstraint(Sketcher.Constraint("Coincident", 1, 2, 2, 1))
sketch9.addConstraint(Sketcher.Constraint("Coincident", 2, 2, 3, 1))
sketch9.addConstraint(Sketcher.Constraint("Coincident", 3, 2, 0, 1))
sketch9.addConstraint(Sketcher.Constraint("Coincident", 4, 2, 5, 1))
sketch9.addConstraint(Sketcher.Constraint("Coincident", 5, 2, 6, 1))
sketch9.addConstraint(Sketcher.Constraint("Coincident", 6, 2, 7, 1))
sketch9.addConstraint(Sketcher.Constraint("Coincident", 7, 2, 4, 1))
sketch9.addConstraint(Sketcher.Constraint("Vertical", 0))
sketch9.addConstraint(Sketcher.Constraint("Vertical", 2))
sketch9.addConstraint(Sketcher.Constraint("Vertical", 4))
sketch9.addConstraint(Sketcher.Constraint("Vertical", 6))
sketch9.addConstraint(Sketcher.Constraint("PointOnObject", 0, 2, -2))
sketch9.addConstraint(Sketcher.Constraint("PointOnObject", 4, 2, -2))
sketch9.addConstraint(Sketcher.Constraint("Parallel", 1, 5))
sketch9.addConstraint(Sketcher.Constraint("Parallel", 3, 7))
sketch9.addConstraint(Sketcher.Constraint("Vertical", 2, 2, 5, 2))
sketch9.addConstraint(Sketcher.Constraint("Equal", 0, 4))
sketch9.addConstraint(Sketcher.Constraint("Equal", 1, 3))
sketch9.addConstraint(Sketcher.Constraint("DistanceX", -1, 1, 1, 2, 10.0))
sketch9.addConstraint(Sketcher.Constraint("DistanceY", 0, 2, 0, 1, 13.174))
sketch9.addConstraint(Sketcher.Constraint("Angle", 1, Q("-25 deg")))
sketch9.addConstraint(Sketcher.Constraint("DistanceY", 4, 2, 0, 2, 110.0))
sketch9.addConstraint(Sketcher.Constraint("DistanceY", 1, 2, -1, 1, 66.25))
pad5 = body.newObject("PartDesign::Pad", "Pad004")
pad5.Profile = sketch9
pad5.Length = 2.5
pad5.Reversed = True

# Sketch on XY plane
sketch10 = body.newObject("Sketcher::SketchObject", "Sketch009")
sketch10.AttachmentSupport = (doc.getObject("XY_Plane"), [""])
sketch10.MapMode = "FlatFace"
sketch10.AttachmentOffset = App.Placement(V(0, 0, 3), App.Rotation())
sketch10.addGeometry(Part.LineSegment(V(-26, 0, 0), V(-21, 10, 0)), False)
sketch10.addGeometry(Part.LineSegment(V(-21, 10, 0), V(-44, 10, 0)), False)
sketch10.addGeometry(Part.LineSegment(V(-44, 10, 0), V(-39, 0, 0)), False)
sketch10.addGeometry(Part.LineSegment(V(-39, 0, 0), V(-26, 0, 0)), False)
sketch10.addGeometry(Part.LineSegment(V(-85, 0, 0), V(-81, 10, 0)), False)
sketch10.addGeometry(Part.LineSegment(V(-81, 10, 0), V(-103, 10, 0)), False)
sketch10.addGeometry(Part.LineSegment(V(-103, 10, 0), V(-99, 0, 0)), False)
sketch10.addGeometry(Part.LineSegment(V(-99, 0, 0), V(-85, 0, 0)), False)
sketch10.addConstraint(Sketcher.Constraint("Coincident", 0, 2, 1, 1))
sketch10.addConstraint(Sketcher.Constraint("Coincident", 1, 2, 2, 1))
sketch10.addConstraint(Sketcher.Constraint("Coincident", 2, 2, 3, 1))
sketch10.addConstraint(Sketcher.Constraint("Coincident", 3, 2, 0, 1))
sketch10.addConstraint(Sketcher.Constraint("Coincident", 4, 2, 5, 1))
sketch10.addConstraint(Sketcher.Constraint("Coincident", 5, 2, 6, 1))
sketch10.addConstraint(Sketcher.Constraint("Coincident", 6, 2, 7, 1))
sketch10.addConstraint(Sketcher.Constraint("Coincident", 7, 2, 4, 1))
sketch10.addConstraint(Sketcher.Constraint("Horizontal", 1))
sketch10.addConstraint(Sketcher.Constraint("Horizontal", 3))
sketch10.addConstraint(Sketcher.Constraint("Horizontal", 5))
sketch10.addConstraint(Sketcher.Constraint("Horizontal", 7))
sketch10.addConstraint(Sketcher.Constraint("PointOnObject", 2, 2, -1))
sketch10.addConstraint(Sketcher.Constraint("PointOnObject", 6, 2, -1))
sketch10.addConstraint(Sketcher.Constraint("Parallel", 0, 4))
sketch10.addConstraint(Sketcher.Constraint("Parallel", 2, 6))
sketch10.addConstraint(Sketcher.Constraint("Horizontal", 1, 2, 4, 2))
sketch10.addConstraint(Sketcher.Constraint("Equal", 1, 5))
sketch10.addConstraint(Sketcher.Constraint("Equal", 0, 2))
sketch10.addConstraint(Sketcher.Constraint("Angle", 0, Q("65 deg")))
sketch10.addConstraint(Sketcher.Constraint("DistanceY", -1, 1, 0, 2, 10.0))
sketch10.addConstraint(Sketcher.Constraint("DistanceX", 3, 1, 3, 2, 13.174))
sketch10.addConstraint(Sketcher.Constraint("DistanceX", 4, 2, 0, 2, 59.63))
sketch10.addConstraint(Sketcher.Constraint("DistanceX", 0, 2, -1, 1, 21.065))
pocket4 = body.newObject("PartDesign::Pocket", "Pocket003")
pocket4.Profile = sketch10
pocket4.Length = 226

# Sketch on XY plane
sketch11 = body.newObject("Sketcher::SketchObject", "Sketch010")
sketch11.AttachmentSupport = (doc.getObject("XY_Plane"), [""])
sketch11.MapMode = "FlatFace"
sketch11.AttachmentOffset = App.Placement(V(0, 0, 3), App.Rotation())
sketch11.addGeometry(Part.LineSegment(V(-26, 0, 0), V(-21, 10, 0)), False)
sketch11.addGeometry(Part.LineSegment(V(-21, 10, 0), V(-44, 10, 0)), False)
sketch11.addGeometry(Part.LineSegment(V(-44, 10, 0), V(-39, 0, 0)), False)
sketch11.addGeometry(Part.LineSegment(V(-39, 0, 0), V(-26, 0, 0)), False)
sketch11.addGeometry(Part.LineSegment(V(-85, 0, 0), V(-81, 10, 0)), False)
sketch11.addGeometry(Part.LineSegment(V(-81, 10, 0), V(-103, 10, 0)), False)
sketch11.addGeometry(Part.LineSegment(V(-103, 10, 0), V(-99, 0, 0)), False)
sketch11.addGeometry(Part.LineSegment(V(-99, 0, 0), V(-85, 0, 0)), False)
sketch11.addConstraint(Sketcher.Constraint("Coincident", 0, 2, 1, 1))
sketch11.addConstraint(Sketcher.Constraint("Coincident", 1, 2, 2, 1))
sketch11.addConstraint(Sketcher.Constraint("Coincident", 2, 2, 3, 1))
sketch11.addConstraint(Sketcher.Constraint("Coincident", 3, 2, 0, 1))
sketch11.addConstraint(Sketcher.Constraint("Coincident", 4, 2, 5, 1))
sketch11.addConstraint(Sketcher.Constraint("Coincident", 5, 2, 6, 1))
sketch11.addConstraint(Sketcher.Constraint("Coincident", 6, 2, 7, 1))
sketch11.addConstraint(Sketcher.Constraint("Coincident", 7, 2, 4, 1))
sketch11.addConstraint(Sketcher.Constraint("Horizontal", 1))
sketch11.addConstraint(Sketcher.Constraint("Horizontal", 3))
sketch11.addConstraint(Sketcher.Constraint("Horizontal", 5))
sketch11.addConstraint(Sketcher.Constraint("Horizontal", 7))
sketch11.addConstraint(Sketcher.Constraint("PointOnObject", 2, 2, -1))
sketch11.addConstraint(Sketcher.Constraint("PointOnObject", 6, 2, -1))
sketch11.addConstraint(Sketcher.Constraint("Parallel", 0, 4))
sketch11.addConstraint(Sketcher.Constraint("Parallel", 2, 6))
sketch11.addConstraint(Sketcher.Constraint("Horizontal", 1, 2, 4, 2))
sketch11.addConstraint(Sketcher.Constraint("Equal", 1, 5))
sketch11.addConstraint(Sketcher.Constraint("Equal", 0, 2))
sketch11.addConstraint(Sketcher.Constraint("Angle", 0, Q("65 deg")))
sketch11.addConstraint(Sketcher.Constraint("DistanceY", -1, 1, 0, 2, 10.0))
sketch11.addConstraint(Sketcher.Constraint("DistanceX", 3, 1, 3, 2, 13.174))
sketch11.addConstraint(Sketcher.Constraint("DistanceX", 4, 2, 0, 2, 59.63))
sketch11.addConstraint(Sketcher.Constraint("DistanceX", 0, 2, -1, 1, 21.065))
pad6 = body.newObject("PartDesign::Pad", "Pad005")
pad6.Profile = sketch11
pad6.Length = 2.5
pad6.Reversed = True

doc.recompute()
